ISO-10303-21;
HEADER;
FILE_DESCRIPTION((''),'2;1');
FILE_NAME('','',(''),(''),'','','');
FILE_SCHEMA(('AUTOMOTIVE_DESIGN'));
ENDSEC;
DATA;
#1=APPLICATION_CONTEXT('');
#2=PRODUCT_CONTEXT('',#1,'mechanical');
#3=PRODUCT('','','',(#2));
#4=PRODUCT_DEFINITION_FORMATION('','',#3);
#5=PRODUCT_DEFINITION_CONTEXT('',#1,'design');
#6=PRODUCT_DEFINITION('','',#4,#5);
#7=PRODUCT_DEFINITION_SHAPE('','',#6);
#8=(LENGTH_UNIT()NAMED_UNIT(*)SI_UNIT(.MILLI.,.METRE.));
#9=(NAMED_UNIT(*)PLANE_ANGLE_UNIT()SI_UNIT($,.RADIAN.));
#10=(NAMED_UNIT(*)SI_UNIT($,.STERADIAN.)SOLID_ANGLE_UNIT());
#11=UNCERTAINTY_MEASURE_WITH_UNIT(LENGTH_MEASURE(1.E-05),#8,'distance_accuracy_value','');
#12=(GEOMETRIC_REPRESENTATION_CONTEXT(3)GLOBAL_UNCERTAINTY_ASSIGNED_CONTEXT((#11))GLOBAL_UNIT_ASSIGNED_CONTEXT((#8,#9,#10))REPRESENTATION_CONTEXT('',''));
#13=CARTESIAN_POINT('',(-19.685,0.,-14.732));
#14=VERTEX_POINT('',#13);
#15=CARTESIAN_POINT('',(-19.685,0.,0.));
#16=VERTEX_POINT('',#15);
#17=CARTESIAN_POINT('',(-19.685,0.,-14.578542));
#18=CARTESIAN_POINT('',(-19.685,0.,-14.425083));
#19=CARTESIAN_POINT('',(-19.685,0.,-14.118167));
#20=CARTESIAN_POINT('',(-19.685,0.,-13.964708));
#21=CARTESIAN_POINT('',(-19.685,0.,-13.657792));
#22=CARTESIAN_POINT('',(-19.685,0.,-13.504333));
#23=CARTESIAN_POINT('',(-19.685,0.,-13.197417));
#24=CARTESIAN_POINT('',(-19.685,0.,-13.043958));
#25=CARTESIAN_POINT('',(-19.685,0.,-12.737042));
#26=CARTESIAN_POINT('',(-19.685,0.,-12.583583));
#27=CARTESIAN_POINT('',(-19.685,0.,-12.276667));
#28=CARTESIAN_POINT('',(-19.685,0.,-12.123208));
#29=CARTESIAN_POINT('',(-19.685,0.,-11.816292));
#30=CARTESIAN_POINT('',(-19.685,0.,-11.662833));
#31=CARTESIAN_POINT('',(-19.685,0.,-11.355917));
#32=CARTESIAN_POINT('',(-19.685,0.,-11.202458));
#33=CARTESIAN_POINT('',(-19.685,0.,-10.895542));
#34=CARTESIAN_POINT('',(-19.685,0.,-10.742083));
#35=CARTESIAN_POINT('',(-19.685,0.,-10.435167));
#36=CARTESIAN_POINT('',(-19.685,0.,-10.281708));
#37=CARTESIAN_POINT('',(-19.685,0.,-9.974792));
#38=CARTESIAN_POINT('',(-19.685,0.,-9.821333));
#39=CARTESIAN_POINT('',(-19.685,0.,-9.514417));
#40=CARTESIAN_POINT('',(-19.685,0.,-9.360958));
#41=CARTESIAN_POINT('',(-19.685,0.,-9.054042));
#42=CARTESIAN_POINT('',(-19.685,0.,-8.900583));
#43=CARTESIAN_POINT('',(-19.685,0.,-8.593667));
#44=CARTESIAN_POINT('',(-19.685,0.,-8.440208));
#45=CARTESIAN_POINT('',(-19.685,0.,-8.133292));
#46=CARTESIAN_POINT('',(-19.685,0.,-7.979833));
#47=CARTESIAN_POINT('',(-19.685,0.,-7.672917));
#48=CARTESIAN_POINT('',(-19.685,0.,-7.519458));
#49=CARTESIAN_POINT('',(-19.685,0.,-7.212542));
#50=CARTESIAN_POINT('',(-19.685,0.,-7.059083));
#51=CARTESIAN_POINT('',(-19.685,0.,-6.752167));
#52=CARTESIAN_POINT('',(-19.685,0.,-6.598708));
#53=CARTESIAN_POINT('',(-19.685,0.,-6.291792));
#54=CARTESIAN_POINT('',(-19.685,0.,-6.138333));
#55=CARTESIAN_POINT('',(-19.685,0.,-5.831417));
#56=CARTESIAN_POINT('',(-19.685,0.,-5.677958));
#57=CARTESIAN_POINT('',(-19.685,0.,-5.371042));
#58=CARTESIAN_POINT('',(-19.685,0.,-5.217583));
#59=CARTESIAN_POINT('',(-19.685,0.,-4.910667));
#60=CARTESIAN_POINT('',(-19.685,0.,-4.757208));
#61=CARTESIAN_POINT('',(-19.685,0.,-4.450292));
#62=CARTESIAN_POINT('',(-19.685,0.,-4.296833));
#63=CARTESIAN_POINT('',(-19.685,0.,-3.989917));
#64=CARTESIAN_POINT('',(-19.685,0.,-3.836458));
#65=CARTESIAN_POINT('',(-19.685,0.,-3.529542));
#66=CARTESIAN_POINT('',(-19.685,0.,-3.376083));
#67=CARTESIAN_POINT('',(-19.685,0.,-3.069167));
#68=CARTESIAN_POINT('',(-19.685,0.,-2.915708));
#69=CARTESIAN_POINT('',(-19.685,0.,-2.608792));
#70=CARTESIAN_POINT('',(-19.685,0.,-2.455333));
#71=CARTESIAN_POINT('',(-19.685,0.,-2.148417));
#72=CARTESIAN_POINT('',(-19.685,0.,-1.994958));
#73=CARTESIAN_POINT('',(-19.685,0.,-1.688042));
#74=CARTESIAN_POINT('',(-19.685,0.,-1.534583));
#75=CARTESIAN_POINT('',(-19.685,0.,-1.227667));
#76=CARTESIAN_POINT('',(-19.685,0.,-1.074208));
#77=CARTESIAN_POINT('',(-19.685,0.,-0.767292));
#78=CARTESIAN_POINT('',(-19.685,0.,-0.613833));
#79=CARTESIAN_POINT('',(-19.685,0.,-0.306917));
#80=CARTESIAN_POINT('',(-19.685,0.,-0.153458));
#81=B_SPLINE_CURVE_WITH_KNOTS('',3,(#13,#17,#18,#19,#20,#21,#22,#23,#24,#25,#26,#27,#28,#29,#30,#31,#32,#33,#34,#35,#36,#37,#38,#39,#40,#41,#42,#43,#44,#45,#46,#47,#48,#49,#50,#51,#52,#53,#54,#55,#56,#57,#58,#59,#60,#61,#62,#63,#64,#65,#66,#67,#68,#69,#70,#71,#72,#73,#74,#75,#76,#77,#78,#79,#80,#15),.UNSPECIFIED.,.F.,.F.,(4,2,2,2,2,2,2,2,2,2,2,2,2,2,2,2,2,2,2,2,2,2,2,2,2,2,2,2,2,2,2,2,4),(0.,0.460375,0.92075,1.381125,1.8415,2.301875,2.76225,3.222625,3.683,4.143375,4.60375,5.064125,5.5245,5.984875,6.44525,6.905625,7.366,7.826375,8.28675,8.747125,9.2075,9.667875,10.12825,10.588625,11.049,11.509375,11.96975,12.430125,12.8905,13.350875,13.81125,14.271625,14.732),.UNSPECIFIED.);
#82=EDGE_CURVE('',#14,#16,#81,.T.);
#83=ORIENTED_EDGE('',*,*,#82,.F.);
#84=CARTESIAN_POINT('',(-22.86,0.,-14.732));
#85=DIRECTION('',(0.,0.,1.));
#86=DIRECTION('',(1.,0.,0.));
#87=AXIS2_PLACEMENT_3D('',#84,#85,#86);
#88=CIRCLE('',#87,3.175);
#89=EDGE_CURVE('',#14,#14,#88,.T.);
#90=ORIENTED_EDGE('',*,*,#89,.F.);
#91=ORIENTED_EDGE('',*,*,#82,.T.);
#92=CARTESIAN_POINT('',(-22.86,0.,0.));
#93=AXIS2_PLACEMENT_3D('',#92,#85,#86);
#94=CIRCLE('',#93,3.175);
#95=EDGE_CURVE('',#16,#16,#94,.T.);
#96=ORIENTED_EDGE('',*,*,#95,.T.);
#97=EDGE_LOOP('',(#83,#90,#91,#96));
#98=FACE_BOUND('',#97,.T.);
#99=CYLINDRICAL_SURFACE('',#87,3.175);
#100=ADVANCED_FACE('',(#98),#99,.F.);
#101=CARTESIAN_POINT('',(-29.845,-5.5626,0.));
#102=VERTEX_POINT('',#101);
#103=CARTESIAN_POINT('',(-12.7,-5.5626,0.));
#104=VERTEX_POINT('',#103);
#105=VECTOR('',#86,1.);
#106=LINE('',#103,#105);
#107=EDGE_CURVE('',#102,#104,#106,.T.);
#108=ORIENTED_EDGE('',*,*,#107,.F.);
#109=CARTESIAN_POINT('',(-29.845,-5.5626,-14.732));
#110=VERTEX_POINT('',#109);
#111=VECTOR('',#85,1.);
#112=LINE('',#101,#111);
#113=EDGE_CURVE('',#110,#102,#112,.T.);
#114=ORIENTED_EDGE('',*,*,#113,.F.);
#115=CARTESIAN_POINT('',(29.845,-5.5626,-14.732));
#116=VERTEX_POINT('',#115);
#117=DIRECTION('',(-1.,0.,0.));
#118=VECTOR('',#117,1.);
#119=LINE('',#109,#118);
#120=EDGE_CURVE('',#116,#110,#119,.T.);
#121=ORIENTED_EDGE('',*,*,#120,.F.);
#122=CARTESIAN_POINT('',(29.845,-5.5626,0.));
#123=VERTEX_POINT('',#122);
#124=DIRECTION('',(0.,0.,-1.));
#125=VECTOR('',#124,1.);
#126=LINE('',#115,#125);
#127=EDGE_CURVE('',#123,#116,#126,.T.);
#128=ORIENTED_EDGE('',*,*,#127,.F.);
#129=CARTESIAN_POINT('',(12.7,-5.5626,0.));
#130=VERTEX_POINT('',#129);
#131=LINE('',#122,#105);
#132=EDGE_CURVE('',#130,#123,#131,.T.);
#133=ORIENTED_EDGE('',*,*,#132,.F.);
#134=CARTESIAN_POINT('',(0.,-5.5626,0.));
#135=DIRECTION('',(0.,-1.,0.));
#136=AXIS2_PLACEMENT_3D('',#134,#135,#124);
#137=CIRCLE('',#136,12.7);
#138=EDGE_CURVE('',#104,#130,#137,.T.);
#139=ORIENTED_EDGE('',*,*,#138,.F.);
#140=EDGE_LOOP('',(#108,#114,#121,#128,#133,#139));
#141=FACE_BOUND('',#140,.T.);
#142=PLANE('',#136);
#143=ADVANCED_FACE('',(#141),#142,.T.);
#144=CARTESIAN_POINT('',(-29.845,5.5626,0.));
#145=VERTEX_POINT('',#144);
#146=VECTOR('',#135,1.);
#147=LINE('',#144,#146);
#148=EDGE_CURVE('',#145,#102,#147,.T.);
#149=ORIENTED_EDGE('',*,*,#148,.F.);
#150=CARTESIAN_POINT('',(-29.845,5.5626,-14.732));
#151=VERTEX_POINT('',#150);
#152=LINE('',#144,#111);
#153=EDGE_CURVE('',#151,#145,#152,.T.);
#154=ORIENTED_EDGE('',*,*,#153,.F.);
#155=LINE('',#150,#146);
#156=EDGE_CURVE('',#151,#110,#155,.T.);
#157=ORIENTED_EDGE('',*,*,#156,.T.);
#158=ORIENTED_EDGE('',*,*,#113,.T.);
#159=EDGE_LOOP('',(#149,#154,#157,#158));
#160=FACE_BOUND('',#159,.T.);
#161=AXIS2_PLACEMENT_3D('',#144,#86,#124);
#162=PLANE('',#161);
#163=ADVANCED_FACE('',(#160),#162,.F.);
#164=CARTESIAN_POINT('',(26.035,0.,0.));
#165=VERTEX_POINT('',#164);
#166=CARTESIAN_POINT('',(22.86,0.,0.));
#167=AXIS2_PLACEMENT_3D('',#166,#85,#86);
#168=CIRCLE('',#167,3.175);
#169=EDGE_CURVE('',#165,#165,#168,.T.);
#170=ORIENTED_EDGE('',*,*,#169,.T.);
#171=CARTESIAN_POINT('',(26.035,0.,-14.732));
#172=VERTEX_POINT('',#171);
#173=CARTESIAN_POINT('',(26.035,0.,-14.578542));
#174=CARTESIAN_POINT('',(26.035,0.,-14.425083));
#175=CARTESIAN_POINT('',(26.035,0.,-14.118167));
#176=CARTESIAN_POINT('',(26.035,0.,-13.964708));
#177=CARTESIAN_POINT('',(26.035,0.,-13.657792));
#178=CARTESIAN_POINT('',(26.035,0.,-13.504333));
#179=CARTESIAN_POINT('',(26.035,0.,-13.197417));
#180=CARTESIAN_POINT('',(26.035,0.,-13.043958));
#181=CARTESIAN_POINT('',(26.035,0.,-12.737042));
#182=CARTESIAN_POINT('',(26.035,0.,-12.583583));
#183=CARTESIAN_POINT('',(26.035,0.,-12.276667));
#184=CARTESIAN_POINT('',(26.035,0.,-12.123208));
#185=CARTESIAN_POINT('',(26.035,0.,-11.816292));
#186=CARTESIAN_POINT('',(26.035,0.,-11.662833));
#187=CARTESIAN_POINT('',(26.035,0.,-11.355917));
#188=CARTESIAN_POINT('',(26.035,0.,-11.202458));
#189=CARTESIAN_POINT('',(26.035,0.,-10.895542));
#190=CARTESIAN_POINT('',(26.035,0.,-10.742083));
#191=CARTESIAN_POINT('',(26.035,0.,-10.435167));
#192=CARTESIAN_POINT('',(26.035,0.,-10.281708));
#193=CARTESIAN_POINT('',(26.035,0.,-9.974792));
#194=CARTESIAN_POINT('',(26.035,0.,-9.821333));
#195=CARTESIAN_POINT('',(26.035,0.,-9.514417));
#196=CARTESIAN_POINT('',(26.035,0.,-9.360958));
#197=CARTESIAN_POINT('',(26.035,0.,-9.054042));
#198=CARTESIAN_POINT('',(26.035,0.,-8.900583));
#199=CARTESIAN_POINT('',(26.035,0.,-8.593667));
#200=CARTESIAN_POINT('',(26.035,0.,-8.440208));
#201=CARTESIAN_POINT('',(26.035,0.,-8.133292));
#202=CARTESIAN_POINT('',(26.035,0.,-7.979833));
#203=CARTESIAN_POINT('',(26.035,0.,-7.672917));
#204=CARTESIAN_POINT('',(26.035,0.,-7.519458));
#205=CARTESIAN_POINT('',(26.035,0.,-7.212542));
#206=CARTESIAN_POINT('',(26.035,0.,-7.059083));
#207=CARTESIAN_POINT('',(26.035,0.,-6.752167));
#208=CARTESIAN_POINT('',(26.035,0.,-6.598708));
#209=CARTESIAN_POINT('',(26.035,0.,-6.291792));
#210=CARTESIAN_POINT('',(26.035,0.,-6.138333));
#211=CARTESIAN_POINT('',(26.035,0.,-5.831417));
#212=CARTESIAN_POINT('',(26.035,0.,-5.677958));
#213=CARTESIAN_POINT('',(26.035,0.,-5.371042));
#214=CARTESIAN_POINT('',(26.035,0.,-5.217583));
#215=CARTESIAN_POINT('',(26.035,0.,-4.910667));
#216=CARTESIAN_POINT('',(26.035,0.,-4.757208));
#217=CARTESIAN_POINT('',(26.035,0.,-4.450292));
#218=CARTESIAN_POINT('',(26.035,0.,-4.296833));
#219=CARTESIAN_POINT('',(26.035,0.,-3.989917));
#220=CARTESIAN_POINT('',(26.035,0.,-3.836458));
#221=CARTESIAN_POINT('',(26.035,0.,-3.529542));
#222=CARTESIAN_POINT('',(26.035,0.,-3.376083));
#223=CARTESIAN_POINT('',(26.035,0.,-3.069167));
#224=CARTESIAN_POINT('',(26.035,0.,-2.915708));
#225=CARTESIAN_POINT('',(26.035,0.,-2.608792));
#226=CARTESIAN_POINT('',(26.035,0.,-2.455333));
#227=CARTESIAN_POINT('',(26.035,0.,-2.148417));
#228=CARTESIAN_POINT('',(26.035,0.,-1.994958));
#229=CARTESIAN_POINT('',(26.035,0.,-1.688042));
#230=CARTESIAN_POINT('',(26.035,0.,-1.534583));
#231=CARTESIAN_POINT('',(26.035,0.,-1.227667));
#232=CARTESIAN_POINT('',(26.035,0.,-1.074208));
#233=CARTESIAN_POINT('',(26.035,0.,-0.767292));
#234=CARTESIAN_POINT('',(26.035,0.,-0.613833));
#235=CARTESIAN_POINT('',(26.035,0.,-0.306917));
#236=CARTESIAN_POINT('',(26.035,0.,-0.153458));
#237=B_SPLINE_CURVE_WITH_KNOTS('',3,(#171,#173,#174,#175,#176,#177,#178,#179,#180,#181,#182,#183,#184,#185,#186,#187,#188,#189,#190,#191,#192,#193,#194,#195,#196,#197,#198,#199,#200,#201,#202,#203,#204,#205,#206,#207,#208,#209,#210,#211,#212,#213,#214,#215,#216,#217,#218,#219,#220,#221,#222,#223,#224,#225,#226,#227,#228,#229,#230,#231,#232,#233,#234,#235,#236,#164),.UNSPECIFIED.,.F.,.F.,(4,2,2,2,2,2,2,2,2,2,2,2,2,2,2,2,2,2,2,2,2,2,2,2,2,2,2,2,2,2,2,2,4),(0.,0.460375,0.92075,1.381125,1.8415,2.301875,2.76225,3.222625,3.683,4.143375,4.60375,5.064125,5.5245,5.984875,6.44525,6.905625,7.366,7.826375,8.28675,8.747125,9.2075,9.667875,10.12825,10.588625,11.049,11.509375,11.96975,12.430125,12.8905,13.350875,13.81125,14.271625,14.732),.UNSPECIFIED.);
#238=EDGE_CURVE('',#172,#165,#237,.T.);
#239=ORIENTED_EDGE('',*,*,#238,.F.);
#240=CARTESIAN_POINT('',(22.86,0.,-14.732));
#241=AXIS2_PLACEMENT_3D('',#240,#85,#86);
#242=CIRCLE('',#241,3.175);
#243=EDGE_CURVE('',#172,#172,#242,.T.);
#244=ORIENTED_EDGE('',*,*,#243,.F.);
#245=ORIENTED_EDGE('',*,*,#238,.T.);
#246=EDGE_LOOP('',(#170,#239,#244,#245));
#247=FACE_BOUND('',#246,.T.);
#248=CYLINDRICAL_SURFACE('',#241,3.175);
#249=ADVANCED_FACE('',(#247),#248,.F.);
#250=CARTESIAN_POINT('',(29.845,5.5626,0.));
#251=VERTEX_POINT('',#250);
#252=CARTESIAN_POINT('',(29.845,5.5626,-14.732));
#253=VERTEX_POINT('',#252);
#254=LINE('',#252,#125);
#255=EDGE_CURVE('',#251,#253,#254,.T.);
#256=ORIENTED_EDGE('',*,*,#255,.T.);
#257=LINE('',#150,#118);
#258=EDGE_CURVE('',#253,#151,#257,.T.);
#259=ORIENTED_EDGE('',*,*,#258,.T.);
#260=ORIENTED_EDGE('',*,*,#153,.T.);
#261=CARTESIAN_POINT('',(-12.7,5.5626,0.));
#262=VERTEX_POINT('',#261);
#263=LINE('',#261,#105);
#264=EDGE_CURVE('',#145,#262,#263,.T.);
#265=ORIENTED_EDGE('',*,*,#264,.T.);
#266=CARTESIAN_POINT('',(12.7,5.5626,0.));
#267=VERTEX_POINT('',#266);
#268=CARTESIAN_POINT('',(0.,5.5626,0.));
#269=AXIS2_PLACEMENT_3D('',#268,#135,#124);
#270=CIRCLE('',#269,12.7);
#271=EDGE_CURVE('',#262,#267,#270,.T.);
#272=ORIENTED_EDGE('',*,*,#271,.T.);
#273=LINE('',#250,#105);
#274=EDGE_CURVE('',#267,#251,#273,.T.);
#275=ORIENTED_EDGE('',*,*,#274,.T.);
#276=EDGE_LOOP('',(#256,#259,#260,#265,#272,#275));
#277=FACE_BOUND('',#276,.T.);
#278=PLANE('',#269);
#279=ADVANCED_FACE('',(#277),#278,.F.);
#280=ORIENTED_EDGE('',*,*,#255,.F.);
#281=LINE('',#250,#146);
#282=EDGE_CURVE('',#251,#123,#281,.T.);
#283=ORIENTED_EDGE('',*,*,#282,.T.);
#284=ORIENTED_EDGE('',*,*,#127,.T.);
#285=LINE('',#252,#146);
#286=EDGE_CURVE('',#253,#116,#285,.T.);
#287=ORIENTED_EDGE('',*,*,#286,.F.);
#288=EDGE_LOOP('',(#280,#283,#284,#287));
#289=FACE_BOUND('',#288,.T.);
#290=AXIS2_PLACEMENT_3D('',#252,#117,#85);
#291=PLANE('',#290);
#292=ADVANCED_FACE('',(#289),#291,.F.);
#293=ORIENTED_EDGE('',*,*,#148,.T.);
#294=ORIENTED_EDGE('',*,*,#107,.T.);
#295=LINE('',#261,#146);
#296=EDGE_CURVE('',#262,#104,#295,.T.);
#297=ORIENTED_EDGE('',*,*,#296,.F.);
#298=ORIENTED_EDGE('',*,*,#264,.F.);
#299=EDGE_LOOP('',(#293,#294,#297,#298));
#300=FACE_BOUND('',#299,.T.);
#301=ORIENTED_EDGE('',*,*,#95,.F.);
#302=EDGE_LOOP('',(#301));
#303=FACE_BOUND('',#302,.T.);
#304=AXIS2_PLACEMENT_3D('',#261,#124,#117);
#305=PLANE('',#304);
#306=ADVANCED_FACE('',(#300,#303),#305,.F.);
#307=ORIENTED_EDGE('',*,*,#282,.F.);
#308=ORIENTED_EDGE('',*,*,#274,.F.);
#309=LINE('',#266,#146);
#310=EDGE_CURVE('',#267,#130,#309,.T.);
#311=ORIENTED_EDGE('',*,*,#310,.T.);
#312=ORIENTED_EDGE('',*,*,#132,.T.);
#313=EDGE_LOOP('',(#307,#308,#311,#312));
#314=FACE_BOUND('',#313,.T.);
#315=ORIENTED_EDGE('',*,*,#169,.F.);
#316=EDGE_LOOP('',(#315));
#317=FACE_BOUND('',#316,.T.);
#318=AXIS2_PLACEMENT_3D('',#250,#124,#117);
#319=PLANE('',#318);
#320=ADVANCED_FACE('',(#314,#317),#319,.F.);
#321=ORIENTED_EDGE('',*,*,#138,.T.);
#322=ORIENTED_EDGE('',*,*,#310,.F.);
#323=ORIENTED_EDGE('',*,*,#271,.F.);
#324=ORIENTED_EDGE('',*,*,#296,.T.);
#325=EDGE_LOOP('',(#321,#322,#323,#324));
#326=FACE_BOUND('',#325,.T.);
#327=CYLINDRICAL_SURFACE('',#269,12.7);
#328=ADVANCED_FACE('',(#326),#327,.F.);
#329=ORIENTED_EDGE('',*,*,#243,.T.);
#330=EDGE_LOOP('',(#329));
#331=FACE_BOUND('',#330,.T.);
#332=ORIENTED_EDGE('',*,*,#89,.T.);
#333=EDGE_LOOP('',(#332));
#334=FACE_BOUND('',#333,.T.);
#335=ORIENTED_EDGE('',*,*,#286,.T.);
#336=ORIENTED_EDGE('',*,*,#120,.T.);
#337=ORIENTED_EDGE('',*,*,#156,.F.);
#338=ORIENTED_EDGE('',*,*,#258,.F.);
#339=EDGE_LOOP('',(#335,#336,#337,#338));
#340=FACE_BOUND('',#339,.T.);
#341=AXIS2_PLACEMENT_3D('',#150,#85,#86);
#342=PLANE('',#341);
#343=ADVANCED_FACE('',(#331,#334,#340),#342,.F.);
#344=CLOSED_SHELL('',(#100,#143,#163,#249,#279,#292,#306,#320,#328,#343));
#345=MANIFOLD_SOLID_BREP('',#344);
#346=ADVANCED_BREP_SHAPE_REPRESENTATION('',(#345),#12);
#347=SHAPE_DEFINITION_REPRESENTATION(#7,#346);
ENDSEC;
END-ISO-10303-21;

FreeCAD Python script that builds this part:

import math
import FreeCAD as App
import Part
import Sketcher
from FreeCAD import Vector
Q = App.Units.Quantity

doc = App.newDocument("Part")
body = doc.addObject("PartDesign::Body", "Body")

# Sketch on XZ plane
sketch1 = doc.addObject("Sketcher::SketchObject", "Sketch")
body.addObject(sketch1)
sketch1.AttachmentSupport = (doc.XZ_Plane, [""])
sketch1.MapMode = "FlatFace"
sketch1.addGeometry(Part.LineSegment(Vector(-30, 0, 0), Vector(-13, 0, 0)), False)
sketch1.addGeometry(Part.ArcOfCircle(Part.Circle(Vector(0, 0, 0), Vector(0, 0, 1), 13), math.radians(180), math.radians(360)), False)
sketch1.addGeometry(Part.LineSegment(Vector(13, 0, 0), Vector(30, 0, 0)), False)
sketch1.addGeometry(Part.LineSegment(Vector(30, 0, 0), Vector(30, -15, 0)), False)
sketch1.addGeometry(Part.LineSegment(Vector(30, -15, 0), Vector(-30, -15, 0)), False)
sketch1.addGeometry(Part.LineSegment(Vector(-30, -15, 0), Vector(-30, 0, 0)), False)
sketch1.addConstraint(Sketcher.Constraint("Coincident", 0, 2, 1, 1))
sketch1.addConstraint(Sketcher.Constraint("Coincident", 1, 2, 2, 1))
sketch1.addConstraint(Sketcher.Constraint("Coincident", 2, 2, 3, 1))
sketch1.addConstraint(Sketcher.Constraint("Coincident", 3, 2, 4, 1))
sketch1.addConstraint(Sketcher.Constraint("Coincident", 4, 2, 5, 1))
sketch1.addConstraint(Sketcher.Constraint("Coincident", 5, 2, 0, 1))
sketch1.addConstraint(Sketcher.Constraint("Horizontal", 0))
sketch1.addConstraint(Sketcher.Constraint("Horizontal", 2))
sketch1.addConstraint(Sketcher.Constraint("Vertical", 3))
sketch1.addConstraint(Sketcher.Constraint("Horizontal", 4))
sketch1.addConstraint(Sketcher.Constraint("Vertical", 5))
sketch1.addConstraint(Sketcher.Constraint("Coincident", 1, 3, -1, 1))
sketch1.addConstraint(Sketcher.Constraint("Symmetric", 2, 2, 5, 2, -1, 1))
sketch1.addConstraint(Sketcher.Constraint("PointOnObject", 0, 2, -1))
sketch1.addConstraint(Sketcher.Constraint("Radius", 1, Q("0.5 in")))
sketch1.addConstraint(Sketcher.Constraint("DistanceX", 4, 2, 4, 1, Q("2.35 in")))
sketch1.addConstraint(Sketcher.Constraint("DistanceY", 3, 2, 3, 1, Q("0.58 in")))
pad1 = doc.addObject("PartDesign::Pad", "Pad")
body.addObject(pad1)
pad1.Profile = sketch1
pad1.Length = Q("0.438 in")
pad1.Midplane = True

# Sketch on XY plane
sketch2 = doc.addObject("Sketcher::SketchObject", "Sketch001")
body.addObject(sketch2)
sketch2.AttachmentSupport = (doc.XY_Plane, [""])
sketch2.MapMode = "FlatFace"
sketch2.addGeometry(Part.Circle(Vector(-22.9, 0, 0), Vector(0, 0, 1), 3.2), False)
sketch2.addGeometry(Part.Circle(Vector(22.9, 0, 0), Vector(0, 0, 1), 3.2), False)
sketch2.addConstraint(Sketcher.Constraint("Equal", 0, 1))
sketch2.addConstraint(Sketcher.Constraint("Symmetric", 0, 3, 1, 3, -1, 1))
sketch2.addConstraint(Sketcher.Constraint("PointOnObject", 0, 3, -1))
sketch2.addConstraint(Sketcher.Constraint("Diameter", 0, Q("0.25 in")))
sketch2.addConstraint(Sketcher.Constraint("DistanceX", 0, 3, -1, 1, Q("0.9 in")))
pocket1 = doc.addObject("PartDesign::Pocket", "Pocket")
body.addObject(pocket1)
pocket1.Profile = sketch2
pocket1.Type = "ThroughAll"

doc.recompute()
